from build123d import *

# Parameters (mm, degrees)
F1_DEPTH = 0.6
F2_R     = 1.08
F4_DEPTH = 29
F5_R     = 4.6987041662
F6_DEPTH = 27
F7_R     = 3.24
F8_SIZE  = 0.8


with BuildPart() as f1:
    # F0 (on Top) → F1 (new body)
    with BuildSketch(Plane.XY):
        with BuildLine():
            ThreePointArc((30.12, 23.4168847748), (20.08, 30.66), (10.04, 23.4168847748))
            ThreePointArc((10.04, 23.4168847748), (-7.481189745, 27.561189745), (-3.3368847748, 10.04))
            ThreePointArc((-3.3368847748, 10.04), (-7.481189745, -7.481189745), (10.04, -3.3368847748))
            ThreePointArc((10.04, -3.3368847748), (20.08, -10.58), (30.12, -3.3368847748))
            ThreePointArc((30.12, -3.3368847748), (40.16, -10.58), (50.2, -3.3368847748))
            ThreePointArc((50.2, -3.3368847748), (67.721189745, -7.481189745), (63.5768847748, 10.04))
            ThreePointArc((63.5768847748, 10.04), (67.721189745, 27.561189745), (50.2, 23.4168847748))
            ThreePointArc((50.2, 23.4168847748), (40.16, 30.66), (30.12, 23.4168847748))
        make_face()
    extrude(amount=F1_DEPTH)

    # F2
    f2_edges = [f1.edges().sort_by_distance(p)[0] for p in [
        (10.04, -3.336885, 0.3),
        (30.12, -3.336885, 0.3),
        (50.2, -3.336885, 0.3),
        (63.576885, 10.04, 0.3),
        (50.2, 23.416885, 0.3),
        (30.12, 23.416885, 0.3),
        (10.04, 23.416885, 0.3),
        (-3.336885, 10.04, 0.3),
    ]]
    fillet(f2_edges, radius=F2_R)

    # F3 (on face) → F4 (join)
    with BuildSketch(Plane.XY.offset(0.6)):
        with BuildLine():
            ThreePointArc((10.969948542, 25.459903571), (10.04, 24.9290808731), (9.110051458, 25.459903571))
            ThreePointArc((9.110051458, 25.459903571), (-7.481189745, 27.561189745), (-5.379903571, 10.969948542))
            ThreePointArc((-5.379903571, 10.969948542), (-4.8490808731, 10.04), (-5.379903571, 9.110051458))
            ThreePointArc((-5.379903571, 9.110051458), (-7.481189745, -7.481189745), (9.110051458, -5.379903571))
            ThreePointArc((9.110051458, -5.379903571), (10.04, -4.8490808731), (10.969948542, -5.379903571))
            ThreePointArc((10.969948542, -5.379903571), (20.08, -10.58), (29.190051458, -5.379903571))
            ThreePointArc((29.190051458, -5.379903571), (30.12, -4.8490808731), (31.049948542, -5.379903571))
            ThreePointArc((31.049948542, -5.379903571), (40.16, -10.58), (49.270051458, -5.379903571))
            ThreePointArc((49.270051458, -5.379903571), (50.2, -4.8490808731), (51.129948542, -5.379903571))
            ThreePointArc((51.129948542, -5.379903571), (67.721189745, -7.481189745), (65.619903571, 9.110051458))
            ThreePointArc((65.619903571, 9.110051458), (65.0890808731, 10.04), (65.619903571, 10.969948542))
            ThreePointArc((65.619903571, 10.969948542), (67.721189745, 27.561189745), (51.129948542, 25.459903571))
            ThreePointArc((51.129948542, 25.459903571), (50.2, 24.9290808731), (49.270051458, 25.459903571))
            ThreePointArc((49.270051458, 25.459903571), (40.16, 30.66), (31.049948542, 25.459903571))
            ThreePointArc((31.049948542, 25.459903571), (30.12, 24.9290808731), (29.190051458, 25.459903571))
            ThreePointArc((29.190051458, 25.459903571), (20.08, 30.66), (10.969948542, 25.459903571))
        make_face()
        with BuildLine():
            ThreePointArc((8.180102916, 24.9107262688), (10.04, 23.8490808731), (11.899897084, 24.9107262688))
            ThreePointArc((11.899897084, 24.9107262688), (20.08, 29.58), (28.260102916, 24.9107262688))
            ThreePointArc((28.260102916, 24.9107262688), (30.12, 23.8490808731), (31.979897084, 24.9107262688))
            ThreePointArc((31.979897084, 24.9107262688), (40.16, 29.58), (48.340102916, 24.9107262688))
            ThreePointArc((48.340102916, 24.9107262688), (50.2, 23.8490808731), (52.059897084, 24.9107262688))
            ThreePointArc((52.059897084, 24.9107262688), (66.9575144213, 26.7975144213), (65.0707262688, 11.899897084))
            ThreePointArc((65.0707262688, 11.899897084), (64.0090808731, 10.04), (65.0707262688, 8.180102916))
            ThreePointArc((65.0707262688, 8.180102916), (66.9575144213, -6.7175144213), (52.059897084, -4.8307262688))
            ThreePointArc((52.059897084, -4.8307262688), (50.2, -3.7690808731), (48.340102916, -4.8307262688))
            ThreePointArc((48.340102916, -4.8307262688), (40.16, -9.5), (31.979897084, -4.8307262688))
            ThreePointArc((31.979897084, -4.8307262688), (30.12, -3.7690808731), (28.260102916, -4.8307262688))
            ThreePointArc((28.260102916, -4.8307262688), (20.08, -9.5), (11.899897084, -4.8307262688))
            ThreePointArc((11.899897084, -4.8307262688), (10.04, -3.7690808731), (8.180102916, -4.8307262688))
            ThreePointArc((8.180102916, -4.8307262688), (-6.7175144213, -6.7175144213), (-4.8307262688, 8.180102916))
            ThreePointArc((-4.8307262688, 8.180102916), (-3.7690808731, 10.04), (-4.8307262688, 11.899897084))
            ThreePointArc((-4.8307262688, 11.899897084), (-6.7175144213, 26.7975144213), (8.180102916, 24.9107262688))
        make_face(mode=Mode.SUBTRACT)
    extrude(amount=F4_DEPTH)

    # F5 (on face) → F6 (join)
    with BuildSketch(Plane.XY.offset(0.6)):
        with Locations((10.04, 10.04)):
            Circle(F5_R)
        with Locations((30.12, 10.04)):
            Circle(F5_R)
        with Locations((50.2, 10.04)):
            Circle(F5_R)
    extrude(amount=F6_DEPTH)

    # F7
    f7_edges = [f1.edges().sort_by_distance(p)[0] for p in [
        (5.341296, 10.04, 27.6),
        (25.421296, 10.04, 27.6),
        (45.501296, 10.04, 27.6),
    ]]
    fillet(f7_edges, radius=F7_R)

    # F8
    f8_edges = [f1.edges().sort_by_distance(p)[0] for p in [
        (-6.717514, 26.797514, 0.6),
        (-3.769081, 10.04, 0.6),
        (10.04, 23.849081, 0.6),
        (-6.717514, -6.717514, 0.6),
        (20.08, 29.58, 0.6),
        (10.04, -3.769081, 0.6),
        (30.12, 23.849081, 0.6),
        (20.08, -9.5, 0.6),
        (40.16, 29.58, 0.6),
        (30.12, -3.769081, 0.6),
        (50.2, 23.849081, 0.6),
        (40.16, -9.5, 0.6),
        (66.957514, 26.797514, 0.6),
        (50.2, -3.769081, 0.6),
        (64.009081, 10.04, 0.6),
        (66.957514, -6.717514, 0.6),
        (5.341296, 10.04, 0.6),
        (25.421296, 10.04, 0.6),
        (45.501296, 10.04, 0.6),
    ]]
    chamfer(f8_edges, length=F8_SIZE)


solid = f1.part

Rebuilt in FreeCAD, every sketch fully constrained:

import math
import FreeCAD as App
import Part
import Sketcher

V = App.Vector
Q = App.Units.Quantity


def edges_at(feature, points):
    """Names of the edges that pass closest to the given points."""
    edges = feature.Shape.Edges
    near = lambda p: min(range(len(edges)), key=lambda i: edges[i].distToShape(Part.Vertex(*p))[0])
    return sorted({f"Edge{near(p) + 1}" for p in points})

doc = App.newDocument("Part")
body = doc.addObject("PartDesign::Body", "Body")

# Sketch on XY plane
sketch1 = body.newObject("Sketcher::SketchObject", "Sketch")
sketch1.AttachmentSupport = (doc.getObject("XY_Plane"), [""])
sketch1.MapMode = "FlatFace"
sketch1.addGeometry([
    Part.ArcOfCircle(Part.Circle(V(20, 20, 0), V(0, 0, 1), 11), math.radians(18), math.radians(162)),  # 0
    Part.ArcOfCircle(Part.Circle(V(0, 20, 0), V(0, 0, 1), 11), math.radians(18), math.radians(252)),  # 1
    Part.ArcOfCircle(Part.Circle(V(0, 0, 0), V(0, 0, 1), 11), math.radians(108), math.radians(342)),  # 2
    Part.ArcOfCircle(Part.Circle(V(20, 0, 0), V(0, 0, 1), 11), math.radians(-162), math.radians(-18)),  # 3
    Part.ArcOfCircle(Part.Circle(V(40, 0, 0), V(0, 0, 1), 11), math.radians(-162), math.radians(-18)),  # 4
    Part.ArcOfCircle(Part.Circle(V(60, 0, 0), V(0, 0, 1), 11), math.radians(-162), math.radians(72)),  # 5
    Part.ArcOfCircle(Part.Circle(V(60, 20, 0), V(0, 0, 1), 11), math.radians(-72), math.radians(162)),  # 6
    Part.ArcOfCircle(Part.Circle(V(40, 20, 0), V(0, 0, 1), 11), math.radians(18), math.radians(162)),  # 7
], False)
sketch1.addConstraint([
    Sketcher.Constraint("Coincident", 0, 2, 1, 1),
    Sketcher.Constraint("Coincident", 1, 2, 2, 1),
    Sketcher.Constraint("Coincident", 2, 2, 3, 1),
    Sketcher.Constraint("Coincident", 3, 2, 4, 1),
    Sketcher.Constraint("Coincident", 4, 2, 5, 1),
    Sketcher.Constraint("Coincident", 5, 2, 6, 1),
    Sketcher.Constraint("Coincident", 6, 2, 7, 1),
    Sketcher.Constraint("Coincident", 7, 2, 0, 1),
    Sketcher.Constraint("Coincident", 2, 3, -1, 1),
    Sketcher.Constraint("Equal", 0, 1),
    Sketcher.Constraint("Equal", 1, 2),
    Sketcher.Constraint("Equal", 2, 3),
    Sketcher.Constraint("Equal", 3, 4),
    Sketcher.Constraint("Equal", 4, 5),
    Sketcher.Constraint("Equal", 5, 6),
    Sketcher.Constraint("Equal", 6, 7),
    Sketcher.Constraint("PointOnObject", 1, 3, -2),
    Sketcher.Constraint("PointOnObject", 3, 3, -1),
    Sketcher.Constraint("PointOnObject", 4, 3, -1),
    Sketcher.Constraint("PointOnObject", 5, 3, -1),
    Sketcher.Constraint("Horizontal", 0, 3, 1, 3),
    Sketcher.Constraint("Horizontal", 1, 3, 6, 3),
    Sketcher.Constraint("Horizontal", 6, 3, 7, 3),
    Sketcher.Constraint("Horizontal", 2, 2, 3, 2),
    Sketcher.Constraint("Horizontal", 3, 2, 4, 2),
    Sketcher.Constraint("Horizontal", 1, 2, 5, 2),
    Sketcher.Constraint("Horizontal", 0, 2, 6, 2),
    Sketcher.Constraint("Horizontal", 6, 2, 7, 2),
    Sketcher.Constraint("Radius", 0, Q("10.58 mm")),
    Sketcher.Constraint("DistanceX", -1, 1, 4, 2, Q("50.2 mm")),
    Sketcher.Constraint("DistanceY", -1, 1, 0, 3, Q("20.08 mm")),
])
pad1 = body.newObject("PartDesign::Pad", "Pad")
pad1.Profile = sketch1
pad1.Length = 0.6
doc.recompute()

fillet = body.newObject("PartDesign::Fillet", "Fillet")
fillet.Base = (pad1, edges_at(pad1, [
    (10.04, -3.337, 0.3),
    (30.12, -3.337, 0.3),
    (50.2, -3.337, 0.3),
    (63.577, 10.04, 0.3),
    (50.2, 23.417, 0.3),
    (30.12, 23.417, 0.3),
    (10.04, 23.417, 0.3),
    (-3.337, 10.04, 0.3),
]))
fillet.Radius = 1.08

# Sketch on XY plane
sketch2 = body.newObject("Sketcher::SketchObject", "Sketch001")
sketch2.AttachmentSupport = (doc.getObject("XY_Plane"), [""])
sketch2.MapMode = "FlatFace"
sketch2.AttachmentOffset = App.Placement(V(0, 0, 0.6), App.Rotation())
sketch2.addGeometry([
    Part.ArcOfCircle(Part.Circle(V(10, 26, 0), V(0, 0, 1), 1.1), math.radians(-149), math.radians(-31)),  # 0
    Part.ArcOfCircle(Part.Circle(V(0, 20.1, 0), V(0, 0, 1), 10.6), math.radians(31), math.radians(239)),  # 1
    Part.ArcOfCircle(Part.Circle(V(-5.9, 10, 0), V(0, 0, 1), 1.1), math.radians(-59), math.radians(59)),  # 2
    Part.ArcOfCircle(Part.Circle(V(0, 0, 0), V(0, 0, 1), 10.6), math.radians(121), math.radians(329)),  # 3
    Part.ArcOfCircle(Part.Circle(V(10, -5.9, 0), V(0, 0, 1), 1.1), math.radians(31), math.radians(149)),  # 4
    Part.ArcOfCircle(Part.Circle(V(20.1, 0, 0), V(0, 0, 1), 10.6), math.radians(-149), math.radians(-31)),  # 5
    Part.ArcOfCircle(Part.Circle(V(30.1, -5.9, 0), V(0, 0, 1), 1.1), math.radians(31), math.radians(149)),  # 6
    Part.ArcOfCircle(Part.Circle(V(40.2, 0, 0), V(0, 0, 1), 10.6), math.radians(-149), math.radians(-31)),  # 7
    Part.ArcOfCircle(Part.Circle(V(50.2, -5.9, 0), V(0, 0, 1), 1.1), math.radians(31), math.radians(149)),  # 8
    Part.ArcOfCircle(Part.Circle(V(60.2, 0, 0), V(0, 0, 1), 10.6), math.radians(-149), math.radians(59)),  # 9
    Part.ArcOfCircle(Part.Circle(V(66.2, 10, 0), V(0, 0, 1), 1.1), math.radians(121), math.radians(239)),  # 10
    Part.ArcOfCircle(Part.Circle(V(60.2, 20.1, 0), V(0, 0, 1), 10.6), math.radians(-59), math.radians(149)),  # 11
    Part.ArcOfCircle(Part.Circle(V(50.2, 26, 0), V(0, 0, 1), 1.1), math.radians(-149), math.radians(-31)),  # 12
    Part.ArcOfCircle(Part.Circle(V(40.2, 20.1, 0), V(0, 0, 1), 10.6), math.radians(31), math.radians(149)),  # 13
    Part.ArcOfCircle(Part.Circle(V(30.1, 26, 0), V(0, 0, 1), 1.1), math.radians(-149), math.radians(-31)),  # 14
    Part.ArcOfCircle(Part.Circle(V(20.1, 20.1, 0), V(0, 0, 1), 10.6), math.radians(31), math.radians(149)),  # 15
    Part.ArcOfCircle(Part.Circle(V(0, 20.1, 0), V(0, 0, 1), 9.5), math.radians(31), math.radians(239)),  # 16
    Part.ArcOfCircle(Part.Circle(V(10, 26, 0), V(0, 0, 1), 2.2), math.radians(-149), math.radians(-31)),  # 17
    Part.ArcOfCircle(Part.Circle(V(20.1, 20.1, 0), V(0, 0, 1), 9.5), math.radians(31), math.radians(149)),  # 18
    Part.ArcOfCircle(Part.Circle(V(30.1, 26, 0), V(0, 0, 1), 2.2), math.radians(-149), math.radians(-31)),  # 19
    Part.ArcOfCircle(Part.Circle(V(40.2, 20.1, 0), V(0, 0, 1), 9.5), math.radians(31), math.radians(149)),  # 20
    Part.ArcOfCircle(Part.Circle(V(50.2, 26, 0), V(0, 0, 1), 2.2), math.radians(-149), math.radians(-31)),  # 21
    Part.ArcOfCircle(Part.Circle(V(60.2, 20.1, 0), V(0, 0, 1), 9.5), math.radians(-59), math.radians(149)),  # 22
    Part.ArcOfCircle(Part.Circle(V(66.2, 10, 0), V(0, 0, 1), 2.2), math.radians(121), math.radians(239)),  # 23
    Part.ArcOfCircle(Part.Circle(V(60.2, 0, 0), V(0, 0, 1), 9.5), math.radians(-149), math.radians(59)),  # 24
    Part.ArcOfCircle(Part.Circle(V(50.2, -5.9, 0), V(0, 0, 1), 2.2), math.radians(31), math.radians(149)),  # 25
    Part.ArcOfCircle(Part.Circle(V(40.2, 0, 0), V(0, 0, 1), 9.5), math.radians(-149), math.radians(-31)),  # 26
    Part.ArcOfCircle(Part.Circle(V(30.1, -5.9, 0), V(0, 0, 1), 2.2), math.radians(31), math.radians(149)),  # 27
    Part.ArcOfCircle(Part.Circle(V(20.1, 0, 0), V(0, 0, 1), 9.5), math.radians(-149), math.radians(-31)),  # 28
    Part.ArcOfCircle(Part.Circle(V(10, -5.9, 0), V(0, 0, 1), 2.2), math.radians(31), math.radians(149)),  # 29
    Part.ArcOfCircle(Part.Circle(V(0, 0, 0), V(0, 0, 1), 9.5), math.radians(121), math.radians(329)),  # 30
    Part.ArcOfCircle(Part.Circle(V(-5.9, 10, 0), V(0, 0, 1), 2.2), math.radians(-59), math.radians(59)),  # 31
], False)
sketch2.addConstraint([
    Sketcher.Constraint("Tangent", 0, 1, 1, 1),
    Sketcher.Constraint("Tangent", 1, 2, 2, 2),
    Sketcher.Constraint("Tangent", 2, 1, 3, 1),
    Sketcher.Constraint("Tangent", 3, 2, 4, 2),
    Sketcher.Constraint("Tangent", 4, 1, 5, 1),
    Sketcher.Constraint("Tangent", 5, 2, 6, 2),
    Sketcher.Constraint("Tangent", 6, 1, 7, 1),
    Sketcher.Constraint("Tangent", 7, 2, 8, 2),
    Sketcher.Constraint("Tangent", 8, 1, 9, 1),
    Sketcher.Constraint("Tangent", 9, 2, 10, 2),
    Sketcher.Constraint("Tangent", 10, 1, 11, 1),
    Sketcher.Constraint("Tangent", 11, 2, 12, 2),
    Sketcher.Constraint("Tangent", 12, 1, 13, 1),
    Sketcher.Constraint("Tangent", 13, 2, 14, 2),
    Sketcher.Constraint("Tangent", 14, 1, 15, 1),
    Sketcher.Constraint("Tangent", 15, 2, 0, 2),
    Sketcher.Constraint("Tangent", 16, 1, 17, 1),
    Sketcher.Constraint("Tangent", 17, 2, 18, 2),
    Sketcher.Constraint("Tangent", 18, 1, 19, 1),
    Sketcher.Constraint("Tangent", 19, 2, 20, 2),
    Sketcher.Constraint("Tangent", 20, 1, 21, 1),
    Sketcher.Constraint("Tangent", 21, 2, 22, 2),
    Sketcher.Constraint("Tangent", 22, 1, 23, 1),
    Sketcher.Constraint("Tangent", 23, 2, 24, 2),
    Sketcher.Constraint("Tangent", 24, 1, 25, 1),
    Sketcher.Constraint("Tangent", 25, 2, 26, 2),
    Sketcher.Constraint("Tangent", 26, 1, 27, 1),
    Sketcher.Constraint("Tangent", 27, 2, 28, 2),
    Sketcher.Constraint("Tangent", 28, 1, 29, 1),
    Sketcher.Constraint("Tangent", 29, 2, 30, 2),
    Sketcher.Constraint("Tangent", 30, 1, 31, 1),
    Sketcher.Constraint("Tangent", 31, 2, 16, 2),
    Sketcher.Constraint("Coincident", 3, 3, -1, 1),
    Sketcher.Constraint("Coincident", 30, 3, -1, 1),
    Sketcher.Constraint("Coincident", 16, 3, 1, 3),
    Sketcher.Constraint("Coincident", 17, 3, 0, 3),
    Sketcher.Constraint("Coincident", 18, 3, 15, 3),
    Sketcher.Constraint("Coincident", 19, 3, 14, 3),
    Sketcher.Constraint("Coincident", 20, 3, 13, 3),
    Sketcher.Constraint("Coincident", 21, 3, 12, 3),
    Sketcher.Constraint("Coincident", 22, 3, 11, 3),
    Sketcher.Constraint("Coincident", 23, 3, 10, 3),
    Sketcher.Constraint("Coincident", 24, 3, 9, 3),
    Sketcher.Constraint("Coincident", 25, 3, 8, 3),
    Sketcher.Constraint("Coincident", 26, 3, 7, 3),
    Sketcher.Constraint("Coincident", 27, 3, 6, 3),
    Sketcher.Constraint("Coincident", 28, 3, 5, 3),
    Sketcher.Constraint("Coincident", 29, 3, 4, 3),
    Sketcher.Constraint("Equal", 0, 2),
    Sketcher.Constraint("Equal", 1, 3),
    Sketcher.Constraint("Equal", 2, 4),
    Sketcher.Constraint("Equal", 3, 5),
    Sketcher.Constraint("Equal", 4, 6),
    Sketcher.Constraint("Equal", 5, 7),
    Sketcher.Constraint("Equal", 6, 8),
    Sketcher.Constraint("Equal", 7, 9),
    Sketcher.Constraint("Equal", 8, 10),
    Sketcher.Constraint("Equal", 9, 11),
    Sketcher.Constraint("Equal", 10, 12),
    Sketcher.Constraint("Equal", 11, 13),
    Sketcher.Constraint("Equal", 12, 14),
    Sketcher.Constraint("Equal", 13, 15),
    Sketcher.Constraint("Equal", 29, 31),
    Sketcher.Constraint("PointOnObject", 1, 3, -2),
    Sketcher.Constraint("PointOnObject", 5, 3, -1),
    Sketcher.Constraint("PointOnObject", 7, 3, -1),
    Sketcher.Constraint("PointOnObject", 9, 3, -1),
    Sketcher.Constraint("Horizontal", 4, 3, 6, 3),
    Sketcher.Constraint("Horizontal", 6, 3, 8, 3),
    Sketcher.Constraint("Horizontal", 2, 3, 10, 3),
    Sketcher.Constraint("Horizontal", 1, 3, 11, 3),
    Sketcher.Constraint("Horizontal", 0, 3, 12, 3),
    Sketcher.Constraint("Horizontal", 11, 3, 13, 3),
    Sketcher.Constraint("Horizontal", 12, 3, 14, 3),
    Sketcher.Constraint("Horizontal", 13, 3, 15, 3),
    Sketcher.Constraint("Radius", 16, Q("9.5 mm")),
    Sketcher.Constraint("Radius", 0, Q("1.08 mm")),
    Sketcher.Constraint("Radius", 1, Q("10.58 mm")),
    Sketcher.Constraint("DistanceX", -1, 1, 8, 3, Q("50.2 mm")),
    Sketcher.Constraint("DistanceY", -1, 1, 1, 3, Q("20.08 mm")),
])
pad2 = body.newObject("PartDesign::Pad", "Pad001")
pad2.Profile = sketch2
pad2.Length = 29

# Sketch on XY plane
sketch3 = body.newObject("Sketcher::SketchObject", "Sketch002")
sketch3.AttachmentSupport = (doc.getObject("XY_Plane"), [""])
sketch3.MapMode = "FlatFace"
sketch3.AttachmentOffset = App.Placement(V(0, 0, 0.6), App.Rotation())
sketch3.addGeometry([
    Part.Circle(V(10, 10, 0), V(0, 0, 1), 4.7),
    Part.Circle(V(30.1, 10, 0), V(0, 0, 1), 4.7),
    Part.Circle(V(50.2, 10, 0), V(0, 0, 1), 4.7),
], False)
sketch3.addConstraint([
    Sketcher.Constraint("Equal", 0, 1),
    Sketcher.Constraint("Equal", 1, 2),
    Sketcher.Constraint("Horizontal", 0, 3, 1, 3),
    Sketcher.Constraint("Horizontal", 1, 3, 2, 3),
    Sketcher.Constraint("DistanceX", -1, 1, 2, 3, Q("50.2 mm")),
    Sketcher.Constraint("Diameter", 0, Q("9.397408 mm")),
    Sketcher.Constraint("DistanceX", -1, 1, 0, 3, Q("10.04 mm")),
    Sketcher.Constraint("DistanceY", -1, 1, 0, 3, Q("10.04 mm")),
    Sketcher.Constraint("DistanceX", -1, 1, 1, 3, Q("30.12 mm")),
])
pad3 = body.newObject("PartDesign::Pad", "Pad002")
pad3.Profile = sketch3
pad3.Length = 27
doc.recompute()

fillet2 = body.newObject("PartDesign::Fillet", "Fillet001")
fillet2.Base = (pad3, edges_at(pad3, [(5.341, 10.04, 27.6), (25.421, 10.04, 27.6), (45.501, 10.04, 27.6)]))
fillet2.Radius = 3.24
doc.recompute()

chamfer = body.newObject("PartDesign::Chamfer", "Chamfer")
chamfer.Base = (fillet2, edges_at(fillet2, [
    (-6.718, 26.798, 0.6),
    (-3.769, 10.04, 0.6),
    (10.04, 23.849, 0.6),
    (-6.718, -6.718, 0.6),
    (20.08, 29.58, 0.6),
    (10.04, -3.769, 0.6),
    (30.12, 23.849, 0.6),
    (20.08, -9.5, 0.6),
    (40.16, 29.58, 0.6),
    (30.12, -3.769, 0.6),
    (50.2, 23.849, 0.6),
    (40.16, -9.5, 0.6),
    (66.958, 26.798, 0.6),
    (50.2, -3.769, 0.6),
    (64.009, 10.04, 0.6),
    (66.958, -6.718, 0.6),
    (5.341, 10.04, 0.6),
    (25.421, 10.04, 0.6),
    (45.501, 10.04, 0.6),
]))
chamfer.Size = 0.8

doc.recompute()
